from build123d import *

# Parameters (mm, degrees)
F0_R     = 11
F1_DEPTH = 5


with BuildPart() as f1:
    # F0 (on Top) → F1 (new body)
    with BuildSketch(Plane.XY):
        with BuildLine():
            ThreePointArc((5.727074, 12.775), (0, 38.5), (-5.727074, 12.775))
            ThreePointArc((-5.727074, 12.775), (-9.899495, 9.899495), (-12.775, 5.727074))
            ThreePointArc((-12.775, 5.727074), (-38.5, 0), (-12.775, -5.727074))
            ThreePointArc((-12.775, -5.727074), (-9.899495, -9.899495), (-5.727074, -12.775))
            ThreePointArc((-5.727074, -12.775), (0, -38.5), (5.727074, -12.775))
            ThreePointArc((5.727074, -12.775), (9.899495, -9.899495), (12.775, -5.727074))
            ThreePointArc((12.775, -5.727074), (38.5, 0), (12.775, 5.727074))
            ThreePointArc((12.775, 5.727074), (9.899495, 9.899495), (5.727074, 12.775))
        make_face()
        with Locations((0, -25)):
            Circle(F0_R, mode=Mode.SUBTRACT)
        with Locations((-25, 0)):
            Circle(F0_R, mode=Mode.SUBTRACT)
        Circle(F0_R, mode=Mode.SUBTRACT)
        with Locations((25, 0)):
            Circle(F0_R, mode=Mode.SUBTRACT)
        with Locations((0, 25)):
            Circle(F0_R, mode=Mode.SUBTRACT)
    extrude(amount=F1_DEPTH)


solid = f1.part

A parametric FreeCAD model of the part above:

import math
import FreeCAD as App
import Part
import Sketcher

doc = App.newDocument("Part")
body = doc.addObject("PartDesign::Body", "Body")

sketch1 = body.newObject("Sketcher::SketchObject", "Sketch")
sketch1.AttachmentSupport = (doc.getObject("XY_Plane"), [""])
sketch1.MapMode = "FlatFace"
sketch1.addGeometry([
    Part.ArcOfCircle(Part.Circle(App.Vector(0, 25, 0), App.Vector(0, 0, 1), 14), math.radians(-65), math.radians(245)),
    Part.ArcOfCircle(Part.Circle(App.Vector(0, 0, 0), App.Vector(0, 0, 1), 14), math.radians(114), math.radians(156)),
    Part.ArcOfCircle(Part.Circle(App.Vector(-25, 0, 0), App.Vector(0, 0, 1), 14), math.radians(25), math.radians(335)),
    Part.ArcOfCircle(Part.Circle(App.Vector(0, 0, 0), App.Vector(0, 0, 1), 14), math.radians(-156), math.radians(-114)),
    Part.ArcOfCircle(Part.Circle(App.Vector(0, -25, 0), App.Vector(0, 0, 1), 14), math.radians(115), math.radians(425)),
    Part.ArcOfCircle(Part.Circle(App.Vector(0, 0, 0), App.Vector(0, 0, 1), 14), math.radians(-66), math.radians(-24)),
    Part.ArcOfCircle(Part.Circle(App.Vector(25, 0, 0), App.Vector(0, 0, 1), 14), math.radians(-155), math.radians(155)),
    Part.ArcOfCircle(Part.Circle(App.Vector(0, 0, 0), App.Vector(0, 0, 1), 14), math.radians(24), math.radians(66)),
    Part.Circle(App.Vector(0, -25, 0), App.Vector(0, 0, 1), 11),
    Part.Circle(App.Vector(-25, 0, 0), App.Vector(0, 0, 1), 11),
    Part.Circle(App.Vector(0, 0, 0), App.Vector(0, 0, 1), 11),
    Part.Circle(App.Vector(25, 0, 0), App.Vector(0, 0, 1), 11),
    Part.Circle(App.Vector(0, 25, 0), App.Vector(0, 0, 1), 11),
], False)
sketch1.addConstraint([
    Sketcher.Constraint("Coincident", 0, 2, 1, 1),
    Sketcher.Constraint("Coincident", 1, 2, 2, 1),
    Sketcher.Constraint("Coincident", 2, 2, 3, 1),
    Sketcher.Constraint("Coincident", 3, 2, 4, 1),
    Sketcher.Constraint("Coincident", 4, 2, 5, 1),
    Sketcher.Constraint("Coincident", 5, 2, 6, 1),
    Sketcher.Constraint("Coincident", 6, 2, 7, 1),
    Sketcher.Constraint("Coincident", 7, 2, 0, 1),
    Sketcher.Constraint("Coincident", 1, 3, -1, 1),
    Sketcher.Constraint("Coincident", 3, 3, -1, 1),
    Sketcher.Constraint("Coincident", 5, 3, -1, 1),
    Sketcher.Constraint("Coincident", 7, 3, -1, 1),
    Sketcher.Constraint("Coincident", 10, 3, -1, 1),
    Sketcher.Constraint("Coincident", 8, 3, 4, 3),
    Sketcher.Constraint("Coincident", 9, 3, 2, 3),
    Sketcher.Constraint("Coincident", 11, 3, 6, 3),
    Sketcher.Constraint("Coincident", 12, 3, 0, 3),
    Sketcher.Constraint("Equal", 0, 2),
    Sketcher.Constraint("Equal", 1, 3),
    Sketcher.Constraint("Equal", 2, 4),
    Sketcher.Constraint("Equal", 3, 5),
    Sketcher.Constraint("Equal", 4, 6),
    Sketcher.Constraint("Equal", 5, 7),
    Sketcher.Constraint("Equal", 8, 9),
    Sketcher.Constraint("Equal", 9, 10),
    Sketcher.Constraint("Equal", 10, 11),
    Sketcher.Constraint("Equal", 11, 12),
    Sketcher.Constraint("Symmetric", 0, 3, 4, 3, -1, 1),
    Sketcher.Constraint("Symmetric", 2, 3, 6, 3, -1, 1),
    Sketcher.Constraint("PointOnObject", 0, 3, -2),
    Sketcher.Constraint("PointOnObject", 2, 3, -1),
    Sketcher.Constraint("Diameter", 8, 22.0),
    Sketcher.Constraint("Radius", 1, 14.0),
    Sketcher.Constraint("Radius", 0, 13.5),
    Sketcher.Constraint("DistanceY", -1, 1, 0, 3, 25.0),
    Sketcher.Constraint("DistanceX", 2, 3, -1, 1, 25.0),
])
pad1 = body.newObject("PartDesign::Pad", "Pad")
pad1.Profile = sketch1
pad1.Length = 5

doc.recompute()
